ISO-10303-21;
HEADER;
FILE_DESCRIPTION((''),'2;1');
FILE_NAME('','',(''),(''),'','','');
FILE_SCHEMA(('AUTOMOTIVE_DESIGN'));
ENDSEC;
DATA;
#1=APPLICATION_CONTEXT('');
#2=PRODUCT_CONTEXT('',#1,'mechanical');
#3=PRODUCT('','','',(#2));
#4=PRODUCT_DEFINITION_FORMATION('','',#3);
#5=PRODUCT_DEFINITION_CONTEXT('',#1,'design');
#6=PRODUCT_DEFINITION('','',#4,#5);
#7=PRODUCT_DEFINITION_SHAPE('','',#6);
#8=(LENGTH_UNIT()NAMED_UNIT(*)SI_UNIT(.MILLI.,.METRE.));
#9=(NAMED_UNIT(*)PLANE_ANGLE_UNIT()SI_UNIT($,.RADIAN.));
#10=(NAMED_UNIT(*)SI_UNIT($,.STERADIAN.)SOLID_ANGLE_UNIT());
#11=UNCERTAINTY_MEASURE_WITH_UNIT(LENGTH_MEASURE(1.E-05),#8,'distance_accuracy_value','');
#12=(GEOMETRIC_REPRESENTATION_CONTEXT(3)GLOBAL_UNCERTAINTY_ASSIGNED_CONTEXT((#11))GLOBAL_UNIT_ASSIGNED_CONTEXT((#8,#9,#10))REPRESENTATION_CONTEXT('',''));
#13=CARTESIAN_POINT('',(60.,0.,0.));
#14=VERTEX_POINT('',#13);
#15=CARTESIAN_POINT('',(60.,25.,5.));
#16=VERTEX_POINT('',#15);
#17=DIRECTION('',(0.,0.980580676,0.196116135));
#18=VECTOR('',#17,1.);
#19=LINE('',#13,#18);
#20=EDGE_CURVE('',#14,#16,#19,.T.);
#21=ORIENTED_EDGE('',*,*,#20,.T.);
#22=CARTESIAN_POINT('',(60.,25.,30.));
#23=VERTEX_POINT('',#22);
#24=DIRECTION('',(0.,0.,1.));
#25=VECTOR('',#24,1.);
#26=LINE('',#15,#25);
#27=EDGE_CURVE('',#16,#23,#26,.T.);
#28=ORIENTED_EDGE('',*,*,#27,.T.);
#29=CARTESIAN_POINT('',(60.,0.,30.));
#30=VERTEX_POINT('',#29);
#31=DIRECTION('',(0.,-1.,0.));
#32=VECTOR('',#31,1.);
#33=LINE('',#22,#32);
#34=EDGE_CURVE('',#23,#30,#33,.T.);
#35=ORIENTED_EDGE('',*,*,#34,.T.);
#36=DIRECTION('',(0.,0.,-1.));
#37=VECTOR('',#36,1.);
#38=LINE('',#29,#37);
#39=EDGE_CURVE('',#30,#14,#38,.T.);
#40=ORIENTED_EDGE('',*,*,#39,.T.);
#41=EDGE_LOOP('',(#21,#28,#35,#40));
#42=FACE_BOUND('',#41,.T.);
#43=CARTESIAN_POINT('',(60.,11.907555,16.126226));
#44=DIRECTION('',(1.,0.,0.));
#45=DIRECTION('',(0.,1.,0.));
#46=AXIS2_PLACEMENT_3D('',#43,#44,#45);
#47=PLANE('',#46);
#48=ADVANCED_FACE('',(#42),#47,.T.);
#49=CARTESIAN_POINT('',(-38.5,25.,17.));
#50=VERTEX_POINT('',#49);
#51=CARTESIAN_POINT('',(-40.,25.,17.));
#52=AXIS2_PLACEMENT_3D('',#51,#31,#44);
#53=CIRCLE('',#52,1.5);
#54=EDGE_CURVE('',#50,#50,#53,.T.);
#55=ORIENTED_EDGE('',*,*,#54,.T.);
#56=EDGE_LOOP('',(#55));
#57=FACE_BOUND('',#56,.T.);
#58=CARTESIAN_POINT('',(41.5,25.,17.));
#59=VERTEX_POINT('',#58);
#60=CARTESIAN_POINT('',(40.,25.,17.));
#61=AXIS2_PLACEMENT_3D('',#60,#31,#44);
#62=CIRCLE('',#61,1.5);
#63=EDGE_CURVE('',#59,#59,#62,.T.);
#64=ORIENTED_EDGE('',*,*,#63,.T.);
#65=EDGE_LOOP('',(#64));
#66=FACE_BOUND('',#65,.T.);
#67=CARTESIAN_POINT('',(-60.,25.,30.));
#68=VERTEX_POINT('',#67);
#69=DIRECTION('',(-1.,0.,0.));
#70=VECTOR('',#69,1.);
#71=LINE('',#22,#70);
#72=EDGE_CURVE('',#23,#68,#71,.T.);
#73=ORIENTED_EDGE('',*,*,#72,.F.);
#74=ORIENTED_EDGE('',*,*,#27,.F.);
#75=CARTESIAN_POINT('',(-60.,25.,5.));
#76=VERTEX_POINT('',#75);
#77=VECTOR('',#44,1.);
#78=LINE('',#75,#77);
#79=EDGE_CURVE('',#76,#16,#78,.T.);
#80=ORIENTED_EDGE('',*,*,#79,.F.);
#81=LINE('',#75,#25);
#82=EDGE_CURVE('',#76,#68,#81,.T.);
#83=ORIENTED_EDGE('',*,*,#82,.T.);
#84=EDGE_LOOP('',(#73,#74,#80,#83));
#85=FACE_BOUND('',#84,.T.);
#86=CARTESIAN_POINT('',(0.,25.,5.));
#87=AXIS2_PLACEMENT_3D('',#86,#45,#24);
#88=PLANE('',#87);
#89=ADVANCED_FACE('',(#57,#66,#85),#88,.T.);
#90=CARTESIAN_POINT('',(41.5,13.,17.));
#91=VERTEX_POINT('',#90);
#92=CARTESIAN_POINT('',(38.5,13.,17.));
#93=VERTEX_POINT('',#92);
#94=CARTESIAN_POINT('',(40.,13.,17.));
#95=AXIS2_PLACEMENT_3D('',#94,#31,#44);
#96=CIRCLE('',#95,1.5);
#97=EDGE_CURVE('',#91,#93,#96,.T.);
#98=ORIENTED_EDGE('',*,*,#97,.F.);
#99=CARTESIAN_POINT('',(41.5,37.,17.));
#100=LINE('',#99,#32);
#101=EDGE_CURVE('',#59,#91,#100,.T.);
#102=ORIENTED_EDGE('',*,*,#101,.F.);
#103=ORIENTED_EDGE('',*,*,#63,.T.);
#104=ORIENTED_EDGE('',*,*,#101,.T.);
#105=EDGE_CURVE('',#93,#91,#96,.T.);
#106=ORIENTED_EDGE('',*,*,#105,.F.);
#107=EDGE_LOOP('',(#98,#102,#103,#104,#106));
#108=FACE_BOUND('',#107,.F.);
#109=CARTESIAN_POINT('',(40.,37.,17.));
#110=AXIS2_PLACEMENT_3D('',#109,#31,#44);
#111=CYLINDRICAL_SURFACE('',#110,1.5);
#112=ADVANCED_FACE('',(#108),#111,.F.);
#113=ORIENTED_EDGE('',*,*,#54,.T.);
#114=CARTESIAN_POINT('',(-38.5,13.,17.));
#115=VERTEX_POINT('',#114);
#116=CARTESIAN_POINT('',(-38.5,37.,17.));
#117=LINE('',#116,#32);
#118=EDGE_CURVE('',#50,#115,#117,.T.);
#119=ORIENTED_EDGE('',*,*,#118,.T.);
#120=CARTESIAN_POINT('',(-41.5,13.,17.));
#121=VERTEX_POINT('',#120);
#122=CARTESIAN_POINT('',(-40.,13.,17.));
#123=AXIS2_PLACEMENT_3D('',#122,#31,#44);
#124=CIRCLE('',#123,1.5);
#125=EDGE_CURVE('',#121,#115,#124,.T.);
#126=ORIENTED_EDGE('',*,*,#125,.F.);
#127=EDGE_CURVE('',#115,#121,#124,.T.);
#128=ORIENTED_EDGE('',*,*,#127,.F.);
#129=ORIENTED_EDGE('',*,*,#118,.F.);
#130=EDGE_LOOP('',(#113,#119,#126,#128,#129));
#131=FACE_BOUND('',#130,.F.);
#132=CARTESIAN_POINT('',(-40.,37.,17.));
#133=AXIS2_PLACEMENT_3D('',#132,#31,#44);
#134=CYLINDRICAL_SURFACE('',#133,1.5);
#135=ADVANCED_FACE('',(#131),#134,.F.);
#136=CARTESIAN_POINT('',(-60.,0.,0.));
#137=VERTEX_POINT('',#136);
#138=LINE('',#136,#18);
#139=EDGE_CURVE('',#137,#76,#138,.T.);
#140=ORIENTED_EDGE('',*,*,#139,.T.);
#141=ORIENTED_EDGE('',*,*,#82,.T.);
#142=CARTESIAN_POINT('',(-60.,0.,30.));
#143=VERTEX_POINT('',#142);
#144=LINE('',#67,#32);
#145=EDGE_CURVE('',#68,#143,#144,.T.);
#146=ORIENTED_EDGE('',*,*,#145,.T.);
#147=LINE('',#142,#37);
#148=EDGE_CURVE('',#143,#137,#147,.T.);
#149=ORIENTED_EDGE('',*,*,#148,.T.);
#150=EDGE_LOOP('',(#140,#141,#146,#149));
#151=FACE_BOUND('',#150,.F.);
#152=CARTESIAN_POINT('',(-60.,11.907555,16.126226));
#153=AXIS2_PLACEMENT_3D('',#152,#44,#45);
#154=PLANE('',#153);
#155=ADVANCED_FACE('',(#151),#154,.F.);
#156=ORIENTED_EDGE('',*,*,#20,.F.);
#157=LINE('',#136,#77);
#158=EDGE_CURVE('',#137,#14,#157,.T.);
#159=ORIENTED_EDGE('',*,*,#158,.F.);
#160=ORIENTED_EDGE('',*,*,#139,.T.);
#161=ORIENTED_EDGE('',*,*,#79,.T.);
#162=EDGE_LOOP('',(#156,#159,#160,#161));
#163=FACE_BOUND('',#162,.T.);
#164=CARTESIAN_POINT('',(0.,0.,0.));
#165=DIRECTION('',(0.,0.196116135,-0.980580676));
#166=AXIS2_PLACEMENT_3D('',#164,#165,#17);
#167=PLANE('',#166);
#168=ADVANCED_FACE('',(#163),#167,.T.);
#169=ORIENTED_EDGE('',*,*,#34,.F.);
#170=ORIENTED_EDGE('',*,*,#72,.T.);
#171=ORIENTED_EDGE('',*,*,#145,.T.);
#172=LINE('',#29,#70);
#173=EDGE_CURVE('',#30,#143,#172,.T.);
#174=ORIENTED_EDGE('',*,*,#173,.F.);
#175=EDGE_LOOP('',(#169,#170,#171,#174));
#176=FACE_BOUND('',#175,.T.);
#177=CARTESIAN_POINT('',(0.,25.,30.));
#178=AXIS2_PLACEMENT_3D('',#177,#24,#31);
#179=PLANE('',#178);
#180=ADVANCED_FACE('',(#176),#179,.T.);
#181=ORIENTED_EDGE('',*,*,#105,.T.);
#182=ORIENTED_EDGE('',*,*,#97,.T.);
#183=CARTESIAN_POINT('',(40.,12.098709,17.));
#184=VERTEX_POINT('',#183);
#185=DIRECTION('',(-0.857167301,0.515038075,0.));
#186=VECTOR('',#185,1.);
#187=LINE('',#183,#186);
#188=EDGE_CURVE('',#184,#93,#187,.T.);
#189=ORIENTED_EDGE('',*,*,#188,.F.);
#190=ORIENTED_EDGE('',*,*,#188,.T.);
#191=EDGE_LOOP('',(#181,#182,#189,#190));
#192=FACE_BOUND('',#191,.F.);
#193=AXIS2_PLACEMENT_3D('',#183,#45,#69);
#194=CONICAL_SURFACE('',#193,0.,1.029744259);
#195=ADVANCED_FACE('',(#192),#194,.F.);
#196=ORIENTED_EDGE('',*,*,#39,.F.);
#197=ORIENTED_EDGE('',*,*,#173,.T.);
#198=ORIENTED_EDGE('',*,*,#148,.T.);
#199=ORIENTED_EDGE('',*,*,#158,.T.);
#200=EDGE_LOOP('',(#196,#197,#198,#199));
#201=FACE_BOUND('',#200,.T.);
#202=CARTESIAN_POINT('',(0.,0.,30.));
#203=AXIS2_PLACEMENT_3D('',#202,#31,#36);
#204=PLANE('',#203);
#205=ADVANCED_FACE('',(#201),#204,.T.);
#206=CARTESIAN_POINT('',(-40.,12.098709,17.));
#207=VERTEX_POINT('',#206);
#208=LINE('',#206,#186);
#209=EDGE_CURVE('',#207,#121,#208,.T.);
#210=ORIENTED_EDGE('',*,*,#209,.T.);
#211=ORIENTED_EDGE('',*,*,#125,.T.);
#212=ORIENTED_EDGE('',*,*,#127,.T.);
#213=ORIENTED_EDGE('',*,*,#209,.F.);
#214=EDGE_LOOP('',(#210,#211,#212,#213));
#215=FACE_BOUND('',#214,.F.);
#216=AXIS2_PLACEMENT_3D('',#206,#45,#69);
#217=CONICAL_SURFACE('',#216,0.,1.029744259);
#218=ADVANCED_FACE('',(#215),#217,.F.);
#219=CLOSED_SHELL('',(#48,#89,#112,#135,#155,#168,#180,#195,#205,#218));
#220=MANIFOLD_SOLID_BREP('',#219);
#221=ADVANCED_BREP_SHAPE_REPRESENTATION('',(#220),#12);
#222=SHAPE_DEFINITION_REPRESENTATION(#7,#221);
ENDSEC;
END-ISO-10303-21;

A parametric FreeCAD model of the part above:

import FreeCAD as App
import Part
import Sketcher

V = App.Vector


def add_polygon(sketch, points):
    """Adds a closed chain of lines whose ends are joined by coincident constraints."""
    first, n = sketch.GeometryCount, len(points)
    for a, b in zip(points, points[1:] + points[:1]):
        sketch.addGeometry(Part.LineSegment(App.Vector(*a, 0), App.Vector(*b, 0)), False)
    for i in range(n):
        sketch.addConstraint(Sketcher.Constraint("Coincident", first + i, 2, first + (i + 1) % n, 1))

doc = App.newDocument("Part")
params = doc.addObject("Spreadsheet::Sheet", "Params")
for row, (alias, value) in enumerate([
    ("sketch1_width", "25 mm"),
    ("sketch1_height", "30 mm"),
    ("pad1_length", "120 mm"),
    ("sketch2_diameter", "3 mm"),
    ("hole_diameter", "3 mm"),
    ("hole_depth", "12 mm"),
], start=1):
    params.set(f"A{row}", alias)
    params.set(f"B{row}", "=" + value)
    params.setAlias(f"B{row}", alias)

body = doc.addObject("PartDesign::Body", "Body")

# Sketch on YZ plane
sketch1 = body.newObject("Sketcher::SketchObject", "Sketch")
sketch1.AttachmentSupport = (doc.getObject("YZ_Plane"), [""])
sketch1.MapMode = "FlatFace"
add_polygon(sketch1, [(0, 30), (0, 0), (25, 5), (25, 30)])  # lines 0-3
sketch1.addConstraint([
    Sketcher.Constraint("Vertical", 0),
    Sketcher.Constraint("Vertical", 2),
    Sketcher.Constraint("Horizontal", 3),
    Sketcher.Constraint("Coincident", 0, 2, -1, 1),
    Sketcher.Constraint("Equal", 3, 2),
    Sketcher.Constraint("DistanceX", 3, 2, 3, 1, 25.0),
    Sketcher.Constraint("DistanceY", 0, 2, 0, 1, 30.0),
])
sketch1.setExpression("Constraints[9]", "Params.sketch1_width")
sketch1.setExpression("Constraints[10]", "Params.sketch1_height")
pad1 = body.newObject("PartDesign::Pad", "Pad")
pad1.Profile = sketch1
pad1.setExpression("Length", "Params.pad1_length")
pad1.Midplane = True

# Sketch on XZ plane
sketch2 = body.newObject("Sketcher::SketchObject", "Sketch001")
sketch2.AttachmentSupport = (doc.getObject("XZ_Plane"), [""])
sketch2.MapMode = "FlatFace"
sketch2.AttachmentOffset = App.Placement(V(0, 0, -25), App.Rotation())
sketch2.addGeometry([
    Part.Circle(V(40, 17, 0), V(0, 0, 1), 1.5),
    Part.Circle(V(-40, 17, 0), V(0, 0, 1), 1.5),
], False)
sketch2.addConstraint([
    Sketcher.Constraint("Equal", 0, 1),
    Sketcher.Constraint("Symmetric", 0, 3, 1, 3, -2),
    Sketcher.Constraint("Diameter", 0, 3.0),
    Sketcher.Constraint("DistanceX", -1, 1, 0, 3, 40.0),
    Sketcher.Constraint("DistanceY", -1, 1, 0, 3, 17.0),
])
sketch2.setExpression("Constraints[2]", "Params.sketch2_diameter")
doc.recompute()
hole = body.newObject("PartDesign::Hole", "Hole")
hole.Profile = sketch2
hole.ThreadType = "None"
hole.setExpression("Diameter", "Params.hole_diameter")
hole.DepthType = "Dimension"
hole.setExpression("Depth", "Params.hole_depth")
hole.DrillPoint = "Angled"
hole.DrillPointAngle = 118
hole.Reversed = True

doc.recompute()
